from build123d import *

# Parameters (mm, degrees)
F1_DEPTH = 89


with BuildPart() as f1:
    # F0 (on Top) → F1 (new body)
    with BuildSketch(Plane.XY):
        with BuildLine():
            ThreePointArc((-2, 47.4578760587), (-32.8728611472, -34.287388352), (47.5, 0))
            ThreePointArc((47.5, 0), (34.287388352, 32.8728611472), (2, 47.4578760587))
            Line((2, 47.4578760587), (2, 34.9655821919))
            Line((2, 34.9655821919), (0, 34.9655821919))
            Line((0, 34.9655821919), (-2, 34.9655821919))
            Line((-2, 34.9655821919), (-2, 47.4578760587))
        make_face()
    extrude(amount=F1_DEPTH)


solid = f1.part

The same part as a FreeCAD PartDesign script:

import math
import FreeCAD as App
import Part
import Sketcher

V = App.Vector

doc = App.newDocument("Part")
body = doc.addObject("PartDesign::Body", "Body")

# Sketch on XY plane
sketch1 = body.newObject("Sketcher::SketchObject", "Sketch")
sketch1.AttachmentSupport = (doc.getObject("XY_Plane"), [""])
sketch1.MapMode = "FlatFace"
sketch1.addGeometry([
    Part.ArcOfCircle(Part.Circle(V(0, 0, 0), V(0, 0, 1), 47.5), math.radians(92.413167), math.radians(360)),  # 0
    Part.ArcOfCircle(Part.Circle(V(0, 0, 0), V(0, 0, 1), 47.5), math.radians(0), math.radians(87.586833)),  # 1
    Part.LineSegment(V(2, 47.457876, 0), V(2, 34.965582, 0)),  # 2
    Part.LineSegment(V(2, 34.965582, 0), V(-2, 34.965582, 0)),  # 3
    Part.LineSegment(V(-2, 34.965582, 0), V(-2, 47.457876, 0)),  # 4
], False)
sketch1.addConstraint([
    Sketcher.Constraint("Tangent", 0, 2, 1, 1),
    Sketcher.Constraint("Coincident", 1, 2, 2, 1),
    Sketcher.Constraint("Coincident", 2, 2, 3, 1),
    Sketcher.Constraint("Coincident", 3, 2, 4, 1),
    Sketcher.Constraint("Coincident", 4, 2, 0, 1),
    Sketcher.Constraint("Vertical", 2),
    Sketcher.Constraint("Horizontal", 3),
    Sketcher.Constraint("Vertical", 4),
    Sketcher.Constraint("Coincident", 0, 3, -1, 1),
    Sketcher.Constraint("Equal", 0, 1),
    Sketcher.Constraint("PointOnObject", 0, 2, -1),
    Sketcher.Constraint("Horizontal", 1, 2, 4, 2),
    Sketcher.Constraint("Radius", 0, 47.5),
    Sketcher.Constraint("DistanceX", 3, 2, 3, 1, 4.0),
    Sketcher.Constraint("DistanceY", 2, 2, 2, 1, 12.492294),
])
pad1 = body.newObject("PartDesign::Pad", "Pad")
pad1.Profile = sketch1
pad1.Length = 89

doc.recompute()
